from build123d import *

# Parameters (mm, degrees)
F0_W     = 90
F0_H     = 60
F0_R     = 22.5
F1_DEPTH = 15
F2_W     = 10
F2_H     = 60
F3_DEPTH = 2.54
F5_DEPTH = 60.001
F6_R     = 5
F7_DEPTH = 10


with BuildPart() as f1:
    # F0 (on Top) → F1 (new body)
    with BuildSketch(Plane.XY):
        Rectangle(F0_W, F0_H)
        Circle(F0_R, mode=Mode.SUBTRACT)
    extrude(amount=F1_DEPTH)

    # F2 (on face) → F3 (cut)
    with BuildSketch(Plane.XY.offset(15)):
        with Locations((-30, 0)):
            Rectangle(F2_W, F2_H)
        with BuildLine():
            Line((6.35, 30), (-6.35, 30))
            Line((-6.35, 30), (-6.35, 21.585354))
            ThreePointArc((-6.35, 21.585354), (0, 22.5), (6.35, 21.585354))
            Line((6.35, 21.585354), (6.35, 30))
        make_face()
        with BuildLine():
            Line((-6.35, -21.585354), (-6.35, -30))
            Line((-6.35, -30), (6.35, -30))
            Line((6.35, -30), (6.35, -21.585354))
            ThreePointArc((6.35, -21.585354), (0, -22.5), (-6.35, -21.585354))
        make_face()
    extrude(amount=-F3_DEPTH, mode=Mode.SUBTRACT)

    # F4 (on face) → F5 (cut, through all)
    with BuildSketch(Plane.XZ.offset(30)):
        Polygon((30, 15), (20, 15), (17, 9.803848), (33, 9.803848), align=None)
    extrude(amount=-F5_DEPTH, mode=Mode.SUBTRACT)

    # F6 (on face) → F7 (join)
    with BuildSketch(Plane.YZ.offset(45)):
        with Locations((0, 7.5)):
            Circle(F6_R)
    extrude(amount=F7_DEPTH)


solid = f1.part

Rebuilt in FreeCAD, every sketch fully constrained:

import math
import FreeCAD as App
import Part
import Sketcher
from FreeCAD import Vector
Q = App.Units.Quantity

doc = App.newDocument("Part")
body = doc.addObject("PartDesign::Body", "Body")

sketch1 = body.newObject("Sketcher::SketchObject", "Sketch")
sketch1.AttachmentSupport = (doc.getObject("XY_Plane"), [""])
sketch1.MapMode = "FlatFace"
sketch1.addGeometry(Part.LineSegment(Vector(-45, 30, 0), Vector(-45, -30, 0)), False)
sketch1.addGeometry(Part.LineSegment(Vector(-45, -30, 0), Vector(45, -30, 0)), False)
sketch1.addGeometry(Part.LineSegment(Vector(45, -30, 0), Vector(45, 30, 0)), False)
sketch1.addGeometry(Part.LineSegment(Vector(45, 30, 0), Vector(-45, 30, 0)), False)
sketch1.addGeometry(Part.Circle(Vector(0, 0, 0), Vector(0, 0, 1), 22), False)
sketch1.addConstraint(Sketcher.Constraint("Coincident", 0, 2, 1, 1))
sketch1.addConstraint(Sketcher.Constraint("Coincident", 1, 2, 2, 1))
sketch1.addConstraint(Sketcher.Constraint("Coincident", 2, 2, 3, 1))
sketch1.addConstraint(Sketcher.Constraint("Coincident", 3, 2, 0, 1))
sketch1.addConstraint(Sketcher.Constraint("Vertical", 0))
sketch1.addConstraint(Sketcher.Constraint("Horizontal", 1))
sketch1.addConstraint(Sketcher.Constraint("Vertical", 2))
sketch1.addConstraint(Sketcher.Constraint("Horizontal", 3))
sketch1.addConstraint(Sketcher.Constraint("Coincident", 4, 3, -1, 1))
sketch1.addConstraint(Sketcher.Constraint("Symmetric", 0, 2, 2, 2, -1, 1))
sketch1.addConstraint(Sketcher.Constraint("Diameter", 4, Q("45 mm")))
sketch1.addConstraint(Sketcher.Constraint("DistanceX", 1, 1, 1, 2, Q("90 mm")))
sketch1.addConstraint(Sketcher.Constraint("DistanceY", 0, 2, 0, 1, Q("60 mm")))
pad1 = body.newObject("PartDesign::Pad", "Pad")
pad1.Profile = sketch1
pad1.Length = 15

sketch2 = body.newObject("Sketcher::SketchObject", "Sketch001")
sketch2.AttachmentSupport = (doc.getObject("XY_Plane"), [""])
sketch2.MapMode = "FlatFace"
sketch2.AttachmentOffset = App.Placement(Vector(0, 0, 15), App.Rotation())
sketch2.addGeometry(Part.LineSegment(Vector(-35, 30, 0), Vector(-35, -30, 0)), False)
sketch2.addGeometry(Part.LineSegment(Vector(-35, -30, 0), Vector(-25, -30, 0)), False)
sketch2.addGeometry(Part.LineSegment(Vector(-25, -30, 0), Vector(-25, 30, 0)), False)
sketch2.addGeometry(Part.LineSegment(Vector(-25, 30, 0), Vector(-35, 30, 0)), False)
sketch2.addGeometry(Part.LineSegment(Vector(6, 30, 0), Vector(-6, 30, 0)), False)
sketch2.addGeometry(Part.LineSegment(Vector(-6, 30, 0), Vector(-6, 22, 0)), False)
sketch2.addGeometry(Part.ArcOfCircle(Part.Circle(Vector(0, 0, 0), Vector(0, 0, 1), 23), math.radians(74), math.radians(106)), False)
sketch2.addGeometry(Part.LineSegment(Vector(6, 22, 0), Vector(6, 30, 0)), False)
sketch2.addGeometry(Part.LineSegment(Vector(-6, -22, 0), Vector(-6, -30, 0)), False)
sketch2.addGeometry(Part.LineSegment(Vector(-6, -30, 0), Vector(6, -30, 0)), False)
sketch2.addGeometry(Part.LineSegment(Vector(6, -30, 0), Vector(6, -22, 0)), False)
sketch2.addGeometry(Part.ArcOfCircle(Part.Circle(Vector(0, 0, 0), Vector(0, 0, 1), 23), math.radians(-106), math.radians(-74)), False)
sketch2.addConstraint(Sketcher.Constraint("Coincident", 0, 2, 1, 1))
sketch2.addConstraint(Sketcher.Constraint("Coincident", 1, 2, 2, 1))
sketch2.addConstraint(Sketcher.Constraint("Coincident", 2, 2, 3, 1))
sketch2.addConstraint(Sketcher.Constraint("Coincident", 3, 2, 0, 1))
sketch2.addConstraint(Sketcher.Constraint("Coincident", 4, 2, 5, 1))
sketch2.addConstraint(Sketcher.Constraint("Coincident", 5, 2, 6, 2))
sketch2.addConstraint(Sketcher.Constraint("Coincident", 6, 1, 7, 1))
sketch2.addConstraint(Sketcher.Constraint("Coincident", 7, 2, 4, 1))
sketch2.addConstraint(Sketcher.Constraint("Coincident", 8, 2, 9, 1))
sketch2.addConstraint(Sketcher.Constraint("Coincident", 9, 2, 10, 1))
sketch2.addConstraint(Sketcher.Constraint("Coincident", 10, 2, 11, 2))
sketch2.addConstraint(Sketcher.Constraint("Coincident", 11, 1, 8, 1))
sketch2.addConstraint(Sketcher.Constraint("Vertical", 0))
sketch2.addConstraint(Sketcher.Constraint("Horizontal", 1))
sketch2.addConstraint(Sketcher.Constraint("Vertical", 2))
sketch2.addConstraint(Sketcher.Constraint("Horizontal", 3))
sketch2.addConstraint(Sketcher.Constraint("Horizontal", 4))
sketch2.addConstraint(Sketcher.Constraint("Vertical", 5))
sketch2.addConstraint(Sketcher.Constraint("Vertical", 7))
sketch2.addConstraint(Sketcher.Constraint("Vertical", 8))
sketch2.addConstraint(Sketcher.Constraint("Horizontal", 9))
sketch2.addConstraint(Sketcher.Constraint("Vertical", 10))
sketch2.addConstraint(Sketcher.Constraint("Coincident", 6, 3, -1, 1))
sketch2.addConstraint(Sketcher.Constraint("Coincident", 11, 3, -1, 1))
sketch2.addConstraint(Sketcher.Constraint("Equal", 6, 11))
sketch2.addConstraint(Sketcher.Constraint("Symmetric", 7, 2, 8, 2, -1, 1))
sketch2.addConstraint(Sketcher.Constraint("Horizontal", 3, 2, 4, 2))
sketch2.addConstraint(Sketcher.Constraint("Horizontal", 5, 2, 6, 1))
sketch2.addConstraint(Sketcher.Constraint("Horizontal", 1, 2, 8, 2))
sketch2.addConstraint(Sketcher.Constraint("Horizontal", 10, 2, 11, 1))
sketch2.addConstraint(Sketcher.Constraint("DistanceX", 1, 1, 1, 2, Q("10 mm")))
sketch2.addConstraint(Sketcher.Constraint("DistanceY", 0, 2, 0, 1, Q("60 mm")))
sketch2.addConstraint(Sketcher.Constraint("DistanceX", 4, 2, 4, 1, Q("12.7 mm")))
sketch2.addConstraint(Sketcher.Constraint("DistanceX", 0, 2, -1, 1, Q("35 mm")))
sketch2.addConstraint(Sketcher.Constraint("Radius", 6, Q("22.500004 mm")))
pocket1 = body.newObject("PartDesign::Pocket", "Pocket")
pocket1.Profile = sketch2
pocket1.Length = 2.54

sketch3 = body.newObject("Sketcher::SketchObject", "Sketch002")
sketch3.AttachmentSupport = (doc.getObject("XZ_Plane"), [""])
sketch3.MapMode = "FlatFace"
sketch3.AttachmentOffset = App.Placement(Vector(0, 0, 30), App.Rotation())
sketch3.addGeometry(Part.LineSegment(Vector(30, 15, 0), Vector(20, 15, 0)), False)
sketch3.addGeometry(Part.LineSegment(Vector(20, 15, 0), Vector(17, 10, 0)), False)
sketch3.addGeometry(Part.LineSegment(Vector(17, 10, 0), Vector(33, 10, 0)), False)
sketch3.addGeometry(Part.LineSegment(Vector(33, 10, 0), Vector(30, 15, 0)), False)
sketch3.addConstraint(Sketcher.Constraint("Coincident", 0, 2, 1, 1))
sketch3.addConstraint(Sketcher.Constraint("Coincident", 1, 2, 2, 1))
sketch3.addConstraint(Sketcher.Constraint("Coincident", 2, 2, 3, 1))
sketch3.addConstraint(Sketcher.Constraint("Coincident", 3, 2, 0, 1))
sketch3.addConstraint(Sketcher.Constraint("Horizontal", 0))
sketch3.addConstraint(Sketcher.Constraint("Horizontal", 2))
sketch3.addConstraint(Sketcher.Constraint("Equal", 1, 3))
sketch3.addConstraint(Sketcher.Constraint("DistanceX", 0, 2, 0, 1, Q("10 mm")))
sketch3.addConstraint(Sketcher.Constraint("DistanceX", 2, 1, 2, 2, Q("16 mm")))
sketch3.addConstraint(Sketcher.Constraint("Angle", 1, Q("-120.000002 deg")))
sketch3.addConstraint(Sketcher.Constraint("DistanceX", -1, 1, 0, 2, Q("20 mm")))
sketch3.addConstraint(Sketcher.Constraint("DistanceY", -1, 1, 0, 2, Q("15 mm")))
pocket2 = body.newObject("PartDesign::Pocket", "Pocket001")
pocket2.Profile = sketch3
pocket2.Type = "ThroughAll"

sketch4 = body.newObject("Sketcher::SketchObject", "Sketch003")
sketch4.AttachmentSupport = (doc.getObject("YZ_Plane"), [""])
sketch4.MapMode = "FlatFace"
sketch4.AttachmentOffset = App.Placement(Vector(0, 0, 45), App.Rotation())
sketch4.addGeometry(Part.Circle(Vector(0, 8, 0), Vector(0, 0, 1), 5), False)
sketch4.addConstraint(Sketcher.Constraint("PointOnObject", 0, 3, -2))
sketch4.addConstraint(Sketcher.Constraint("Diameter", 0, Q("10 mm")))
sketch4.addConstraint(Sketcher.Constraint("DistanceY", -1, 1, 0, 3, Q("7.5 mm")))
pad2 = body.newObject("PartDesign::Pad", "Pad001")
pad2.Profile = sketch4
pad2.Length = 10

doc.recompute()
